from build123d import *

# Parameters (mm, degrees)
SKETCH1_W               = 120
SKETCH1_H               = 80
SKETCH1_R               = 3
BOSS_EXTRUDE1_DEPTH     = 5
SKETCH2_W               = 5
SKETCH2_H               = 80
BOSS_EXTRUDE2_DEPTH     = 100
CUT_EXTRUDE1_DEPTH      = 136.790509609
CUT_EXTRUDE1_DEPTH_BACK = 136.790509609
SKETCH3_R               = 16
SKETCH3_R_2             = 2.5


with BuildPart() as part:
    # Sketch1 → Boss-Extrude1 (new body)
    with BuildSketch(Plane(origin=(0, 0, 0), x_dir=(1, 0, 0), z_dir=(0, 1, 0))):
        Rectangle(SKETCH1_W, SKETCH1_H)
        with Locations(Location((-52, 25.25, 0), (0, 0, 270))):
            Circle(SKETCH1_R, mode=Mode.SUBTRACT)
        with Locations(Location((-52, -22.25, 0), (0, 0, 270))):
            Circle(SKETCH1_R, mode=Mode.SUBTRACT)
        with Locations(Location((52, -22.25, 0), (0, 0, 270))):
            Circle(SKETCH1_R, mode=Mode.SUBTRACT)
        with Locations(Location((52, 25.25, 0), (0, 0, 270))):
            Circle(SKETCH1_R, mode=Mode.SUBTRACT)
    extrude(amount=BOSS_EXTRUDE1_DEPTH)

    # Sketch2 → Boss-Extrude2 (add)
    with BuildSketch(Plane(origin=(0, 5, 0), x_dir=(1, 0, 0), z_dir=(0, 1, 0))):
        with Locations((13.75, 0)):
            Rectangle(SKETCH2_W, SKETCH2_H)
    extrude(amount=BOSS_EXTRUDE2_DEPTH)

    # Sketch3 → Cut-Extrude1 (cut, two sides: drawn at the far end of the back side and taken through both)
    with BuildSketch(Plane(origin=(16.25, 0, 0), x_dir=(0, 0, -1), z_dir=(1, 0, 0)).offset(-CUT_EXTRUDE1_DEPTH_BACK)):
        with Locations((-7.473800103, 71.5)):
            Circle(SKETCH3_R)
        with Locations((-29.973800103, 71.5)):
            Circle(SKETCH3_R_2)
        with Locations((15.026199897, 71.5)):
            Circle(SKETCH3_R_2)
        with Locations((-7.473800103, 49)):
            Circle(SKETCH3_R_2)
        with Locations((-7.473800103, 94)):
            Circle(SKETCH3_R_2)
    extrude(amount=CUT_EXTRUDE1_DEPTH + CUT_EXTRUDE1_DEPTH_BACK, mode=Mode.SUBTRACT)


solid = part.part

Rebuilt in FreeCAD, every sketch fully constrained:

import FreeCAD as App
import Part
import Sketcher

doc = App.newDocument("Part")
body = doc.addObject("PartDesign::Body", "Body")

# Sketch on XZ plane
sketch1 = body.newObject("Sketcher::SketchObject", "Sketch")
sketch1.AttachmentSupport = (doc.getObject("XZ_Plane"), [""])
sketch1.MapMode = "FlatFace"
sketch1.addGeometry([
    Part.LineSegment(App.Vector(-60, -40, 0), App.Vector(-60, 40, 0)),  # 0
    Part.LineSegment(App.Vector(-60, 40, 0), App.Vector(60, 40, 0)),  # 1
    Part.LineSegment(App.Vector(60, 40, 0), App.Vector(60, -40, 0)),  # 2
    Part.LineSegment(App.Vector(60, -40, 0), App.Vector(-60, -40, 0)),  # 3
    Part.Circle(App.Vector(-52, 22.25, 0), App.Vector(0, 0, 1), 3),  # 4
    Part.Circle(App.Vector(52, 22.25, 0), App.Vector(0, 0, 1), 3),  # 5
    Part.Circle(App.Vector(-52, -25.25, 0), App.Vector(0, 0, 1), 3),  # 6
    Part.Circle(App.Vector(52, -25.25, 0), App.Vector(0, 0, 1), 3),  # 7
], False)
sketch1.addConstraint([
    Sketcher.Constraint("Coincident", 0, 2, 1, 1),
    Sketcher.Constraint("Coincident", 1, 2, 2, 1),
    Sketcher.Constraint("Coincident", 2, 2, 3, 1),
    Sketcher.Constraint("Coincident", 3, 2, 0, 1),
    Sketcher.Constraint("Vertical", 0),
    Sketcher.Constraint("Horizontal", 1),
    Sketcher.Constraint("Vertical", 2),
    Sketcher.Constraint("Horizontal", 3),
    Sketcher.Constraint("Equal", 4, 5),
    Sketcher.Constraint("Equal", 5, 6),
    Sketcher.Constraint("Equal", 6, 7),
    Sketcher.Constraint("Symmetric", 0, 2, 2, 2, -1, 1),
    Sketcher.Constraint("Symmetric", 4, 3, 5, 3, -2),
    Sketcher.Constraint("Symmetric", 6, 3, 7, 3, -2),
    Sketcher.Constraint("Vertical", 4, 3, 6, 3),
    Sketcher.Constraint("Diameter", 4, 6.0),
    Sketcher.Constraint("DistanceX", 1, 1, 1, 2, 120.0),
    Sketcher.Constraint("DistanceY", 0, 1, 0, 2, 80.0),
    Sketcher.Constraint("DistanceX", 4, 3, -1, 1, 52.0),
    Sketcher.Constraint("DistanceY", 6, 3, 4, 3, 47.5),
    Sketcher.Constraint("DistanceY", -1, 1, 4, 3, 22.25),
])
pad1 = body.newObject("PartDesign::Pad", "Pad")
pad1.Profile = sketch1
pad1.Length = 5
pad1.Reversed = True

# Sketch on XZ plane
sketch2 = body.newObject("Sketcher::SketchObject", "Sketch001")
sketch2.AttachmentSupport = (doc.getObject("XZ_Plane"), [""])
sketch2.MapMode = "FlatFace"
sketch2.AttachmentOffset = App.Placement(App.Vector(0, 0, -5), App.Rotation())
sketch2.addGeometry([
    Part.LineSegment(App.Vector(11.25, -40, 0), App.Vector(11.25, 40, 0)),
    Part.LineSegment(App.Vector(11.25, 40, 0), App.Vector(16.25, 40, 0)),
    Part.LineSegment(App.Vector(16.25, 40, 0), App.Vector(16.25, -40, 0)),
    Part.LineSegment(App.Vector(16.25, -40, 0), App.Vector(11.25, -40, 0)),
], False)
sketch2.addConstraint([
    Sketcher.Constraint("Coincident", 0, 2, 1, 1),
    Sketcher.Constraint("Coincident", 1, 2, 2, 1),
    Sketcher.Constraint("Coincident", 2, 2, 3, 1),
    Sketcher.Constraint("Coincident", 3, 2, 0, 1),
    Sketcher.Constraint("Vertical", 0),
    Sketcher.Constraint("Horizontal", 1),
    Sketcher.Constraint("Vertical", 2),
    Sketcher.Constraint("Horizontal", 3),
    Sketcher.Constraint("DistanceX", 1, 1, 1, 2, 5.0),
    Sketcher.Constraint("DistanceY", 0, 1, 0, 2, 80.0),
    Sketcher.Constraint("DistanceY", -1, 1, 0, 2, 40.0),
    Sketcher.Constraint("DistanceX", -1, 1, 0, 2, 11.25),
])
pad2 = body.newObject("PartDesign::Pad", "Pad001")
pad2.Profile = sketch2
pad2.Length = 100
pad2.Reversed = True

# Sketch on YZ plane
sketch3 = body.newObject("Sketcher::SketchObject", "Sketch002")
sketch3.AttachmentSupport = (doc.getObject("YZ_Plane"), [""])
sketch3.MapMode = "FlatFace"
sketch3.AttachmentOffset = App.Placement(App.Vector(0, 0, 16.25), App.Rotation())
sketch3.addGeometry([
    Part.Circle(App.Vector(71.5, 7.4738, 0), App.Vector(0, 0, 1), 16),  # 0
    Part.Circle(App.Vector(71.5, 29.9738, 0), App.Vector(0, 0, 1), 2.5),  # 1
    Part.Circle(App.Vector(71.5, -15.0262, 0), App.Vector(0, 0, 1), 2.5),  # 2
    Part.Circle(App.Vector(49, 7.4738, 0), App.Vector(0, 0, 1), 2.5),  # 3
    Part.Circle(App.Vector(94, 7.4738, 0), App.Vector(0, 0, 1), 2.5),  # 4
], False)
sketch3.addConstraint([
    Sketcher.Constraint("Equal", 1, 2),
    Sketcher.Constraint("Equal", 2, 3),
    Sketcher.Constraint("Equal", 3, 4),
    Sketcher.Constraint("Horizontal", 0, 3, 3, 3),
    Sketcher.Constraint("Horizontal", 3, 3, 4, 3),
    Sketcher.Constraint("Vertical", 0, 3, 1, 3),
    Sketcher.Constraint("Vertical", 1, 3, 2, 3),
    Sketcher.Constraint("Diameter", 0, 32.0),
    Sketcher.Constraint("Diameter", 1, 5.0),
    Sketcher.Constraint("DistanceX", -1, 1, 3, 3, 49.0),
    Sketcher.Constraint("DistanceX", -1, 1, 4, 3, 94.0),
    Sketcher.Constraint("DistanceY", 2, 3, 1, 3, 45.0),
    Sketcher.Constraint("DistanceX", -1, 1, 0, 3, 71.5),
    Sketcher.Constraint("DistanceY", 0, 3, 1, 3, 22.5),
    Sketcher.Constraint("DistanceY", -1, 1, 0, 3, 7.4738),
])
pocket1 = body.newObject("PartDesign::Pocket", "Pocket")
pocket1.Profile = sketch3
pocket1.Type = "ThroughAll"
pocket1.Midplane = True

doc.recompute()
